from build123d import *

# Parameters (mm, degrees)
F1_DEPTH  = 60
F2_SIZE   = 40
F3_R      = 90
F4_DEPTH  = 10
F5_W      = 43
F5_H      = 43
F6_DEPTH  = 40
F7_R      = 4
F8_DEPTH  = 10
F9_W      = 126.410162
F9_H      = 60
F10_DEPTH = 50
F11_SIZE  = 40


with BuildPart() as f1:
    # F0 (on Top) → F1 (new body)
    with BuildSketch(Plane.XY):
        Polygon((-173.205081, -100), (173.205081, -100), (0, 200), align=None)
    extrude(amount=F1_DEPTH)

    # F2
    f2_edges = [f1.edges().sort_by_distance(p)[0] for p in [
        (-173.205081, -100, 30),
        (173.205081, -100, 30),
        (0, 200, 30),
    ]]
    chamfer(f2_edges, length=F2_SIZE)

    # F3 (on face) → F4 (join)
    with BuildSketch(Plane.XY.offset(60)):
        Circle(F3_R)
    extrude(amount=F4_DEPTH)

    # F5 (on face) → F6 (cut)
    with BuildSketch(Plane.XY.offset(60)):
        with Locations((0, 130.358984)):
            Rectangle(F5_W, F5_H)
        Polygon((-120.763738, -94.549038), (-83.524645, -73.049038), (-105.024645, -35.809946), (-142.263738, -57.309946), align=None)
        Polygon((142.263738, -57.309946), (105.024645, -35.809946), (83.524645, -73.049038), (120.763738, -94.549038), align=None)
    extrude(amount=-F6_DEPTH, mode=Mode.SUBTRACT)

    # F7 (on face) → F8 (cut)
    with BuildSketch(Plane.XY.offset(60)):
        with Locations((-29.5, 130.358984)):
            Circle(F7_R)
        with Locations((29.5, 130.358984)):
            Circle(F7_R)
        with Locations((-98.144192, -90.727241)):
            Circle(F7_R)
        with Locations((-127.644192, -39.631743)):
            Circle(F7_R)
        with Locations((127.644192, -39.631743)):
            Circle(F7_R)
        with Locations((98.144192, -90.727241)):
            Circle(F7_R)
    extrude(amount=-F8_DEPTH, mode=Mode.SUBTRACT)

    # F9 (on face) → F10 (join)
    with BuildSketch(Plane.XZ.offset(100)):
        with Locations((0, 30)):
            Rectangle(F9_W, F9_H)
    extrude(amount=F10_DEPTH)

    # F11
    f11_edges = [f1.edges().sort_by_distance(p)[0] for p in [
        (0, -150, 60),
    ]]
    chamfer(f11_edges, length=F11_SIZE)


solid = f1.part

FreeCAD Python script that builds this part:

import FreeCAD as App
import Part
import Sketcher
from FreeCAD import Vector
Q = App.Units.Quantity


def edges_at(feature, points):
    """Names of the edges that pass closest to the given points."""
    edges = feature.Shape.Edges
    near = lambda p: min(range(len(edges)), key=lambda i: edges[i].distToShape(Part.Vertex(*p))[0])
    return sorted({f"Edge{near(p) + 1}" for p in points})

doc = App.newDocument("Part")
body = doc.addObject("PartDesign::Body", "Body")

# Sketch on XY plane
sketch1 = body.newObject("Sketcher::SketchObject", "Sketch")
sketch1.AttachmentSupport = (doc.getObject("XY_Plane"), [""])
sketch1.MapMode = "FlatFace"
sketch1.addGeometry([
    Part.LineSegment(Vector(-173, -100, 0), Vector(173, -100, 0)),
    Part.LineSegment(Vector(173, -100, 0), Vector(0, 200, 0)),
    Part.LineSegment(Vector(0, 200, 0), Vector(-173, -100, 0)),
], False)
sketch1.addConstraint([
    Sketcher.Constraint("Coincident", 0, 2, 1, 1),
    Sketcher.Constraint("Coincident", 1, 2, 2, 1),
    Sketcher.Constraint("Coincident", 2, 2, 0, 1),
    Sketcher.Constraint("Horizontal", 0),
    Sketcher.Constraint("PointOnObject", 1, 2, -2),
    Sketcher.Constraint("Equal", 1, 2),
    Sketcher.Constraint("Angle", 1, Q("120 deg")),
    Sketcher.Constraint("DistanceY", 0, 2, -1, 1, 100.0),
    Sketcher.Constraint("DistanceY", -1, 1, 1, 2, 200.0),
])
pad1 = body.newObject("PartDesign::Pad", "Pad")
pad1.Profile = sketch1
pad1.Length = 60
doc.recompute()

chamfer = body.newObject("PartDesign::Chamfer", "Chamfer")
chamfer.Base = (pad1, edges_at(pad1, [(-173.205, -100, 30), (173.205, -100, 30), (0, 200, 30)]))
chamfer.Size = 40

# Sketch on XY plane
sketch2 = body.newObject("Sketcher::SketchObject", "Sketch001")
sketch2.AttachmentSupport = (doc.getObject("XY_Plane"), [""])
sketch2.MapMode = "FlatFace"
sketch2.AttachmentOffset = App.Placement(Vector(0, 0, 60), App.Rotation())
sketch2.addGeometry(Part.Circle(Vector(0, 0, 0), Vector(0, 0, 1), 90), False)
sketch2.addConstraint([
    Sketcher.Constraint("Coincident", 0, 3, -1, 1),
    Sketcher.Constraint("Diameter", 0, 180.0),
])
pad2 = body.newObject("PartDesign::Pad", "Pad001")
pad2.Profile = sketch2
pad2.Length = 10

# Sketch on XY plane
sketch3 = body.newObject("Sketcher::SketchObject", "Sketch002")
sketch3.AttachmentSupport = (doc.getObject("XY_Plane"), [""])
sketch3.MapMode = "FlatFace"
sketch3.AttachmentOffset = App.Placement(Vector(0, 0, 60), App.Rotation())
sketch3.addGeometry([
    Part.LineSegment(Vector(-22, 152, 0), Vector(-22, 109, 0)),  # 0
    Part.LineSegment(Vector(-22, 109, 0), Vector(22, 109, 0)),  # 1
    Part.LineSegment(Vector(22, 109, 0), Vector(22, 152, 0)),  # 2
    Part.LineSegment(Vector(22, 152, 0), Vector(-22, 152, 0)),  # 3
    Part.LineSegment(Vector(-121, -95, 0), Vector(-84, -73, 0)),  # 4
    Part.LineSegment(Vector(-84, -73, 0), Vector(-105, -36, 0)),  # 5
    Part.LineSegment(Vector(-105, -36, 0), Vector(-142, -57, 0)),  # 6
    Part.LineSegment(Vector(-142, -57, 0), Vector(-121, -95, 0)),  # 7
    Part.LineSegment(Vector(142, -57, 0), Vector(105, -36, 0)),  # 8
    Part.LineSegment(Vector(105, -36, 0), Vector(84, -73, 0)),  # 9
    Part.LineSegment(Vector(84, -73, 0), Vector(121, -95, 0)),  # 10
    Part.LineSegment(Vector(121, -95, 0), Vector(142, -57, 0)),  # 11
], False)
sketch3.addConstraint([
    Sketcher.Constraint("Coincident", 0, 2, 1, 1),
    Sketcher.Constraint("Coincident", 1, 2, 2, 1),
    Sketcher.Constraint("Coincident", 2, 2, 3, 1),
    Sketcher.Constraint("Coincident", 3, 2, 0, 1),
    Sketcher.Constraint("Coincident", 4, 2, 5, 1),
    Sketcher.Constraint("Coincident", 5, 2, 6, 1),
    Sketcher.Constraint("Coincident", 6, 2, 7, 1),
    Sketcher.Constraint("Coincident", 7, 2, 4, 1),
    Sketcher.Constraint("Coincident", 8, 2, 9, 1),
    Sketcher.Constraint("Coincident", 9, 2, 10, 1),
    Sketcher.Constraint("Coincident", 10, 2, 11, 1),
    Sketcher.Constraint("Coincident", 11, 2, 8, 1),
    Sketcher.Constraint("Vertical", 0),
    Sketcher.Constraint("Horizontal", 1),
    Sketcher.Constraint("Vertical", 2),
    Sketcher.Constraint("Horizontal", 3),
    Sketcher.Constraint("Symmetric", 5, 2, 8, 2, -2),
    Sketcher.Constraint("Symmetric", 4, 2, 9, 2, -2),
    Sketcher.Constraint("Symmetric", 7, 2, 10, 2, -2),
    Sketcher.Constraint("Symmetric", 6, 2, 11, 2, -2),
    Sketcher.Constraint("Perpendicular", 4, 5),
    Sketcher.Constraint("Perpendicular", 5, 6),
    Sketcher.Constraint("Perpendicular", 6, 7),
    Sketcher.Constraint("Equal", 3, 0),
    Sketcher.Constraint("Equal", 4, 5),
    Sketcher.Constraint("DistanceX", 1, 1, 1, 2, 43.0),
    Sketcher.Constraint("Angle", 4, Q("30 deg")),
    Sketcher.Constraint("Distance", 4, 43.000001),
    Sketcher.Constraint("DistanceX", 0, 2, -1, 1, 21.5),
    Sketcher.Constraint("DistanceX", 7, 2, -1, 1, 120.763738),
    Sketcher.Constraint("DistanceY", 4, 2, 3, 2, 224.908022),
    Sketcher.Constraint("DistanceY", -1, 1, 0, 2, 108.858984),
])
pocket1 = body.newObject("PartDesign::Pocket", "Pocket")
pocket1.Profile = sketch3
pocket1.Length = 40

# Sketch on XY plane
sketch4 = body.newObject("Sketcher::SketchObject", "Sketch003")
sketch4.AttachmentSupport = (doc.getObject("XY_Plane"), [""])
sketch4.MapMode = "FlatFace"
sketch4.AttachmentOffset = App.Placement(Vector(0, 0, 60), App.Rotation())
sketch4.addGeometry([
    Part.Circle(Vector(-29.5, 130.4, 0), Vector(0, 0, 1), 4),  # 0
    Part.Circle(Vector(29.5, 130.4, 0), Vector(0, 0, 1), 4),  # 1
    Part.Circle(Vector(-98.1, -90.7, 0), Vector(0, 0, 1), 4),  # 2
    Part.Circle(Vector(-127.6, -39.6, 0), Vector(0, 0, 1), 4),  # 3
    Part.Circle(Vector(127.6, -39.6, 0), Vector(0, 0, 1), 4),  # 4
    Part.Circle(Vector(98.1, -90.7, 0), Vector(0, 0, 1), 4),  # 5
], False)
sketch4.addConstraint([
    Sketcher.Constraint("Equal", 0, 1),
    Sketcher.Constraint("Equal", 1, 2),
    Sketcher.Constraint("Equal", 2, 3),
    Sketcher.Constraint("Equal", 3, 4),
    Sketcher.Constraint("Equal", 4, 5),
    Sketcher.Constraint("Symmetric", 0, 3, 1, 3, -2),
    Sketcher.Constraint("Symmetric", 3, 3, 4, 3, -2),
    Sketcher.Constraint("Symmetric", 2, 3, 5, 3, -2),
    Sketcher.Constraint("Diameter", 0, 8.0),
    Sketcher.Constraint("DistanceX", 0, 3, 1, 3, 59.0),
    Sketcher.Constraint("DistanceX", 3, 3, 2, 3, 29.5),
    Sketcher.Constraint("DistanceY", 2, 3, 3, 3, 51.095498),
    Sketcher.Constraint("DistanceY", 2, 3, -1, 1, 90.727241),
    Sketcher.Constraint("DistanceX", 3, 3, 1, 3, 157.144192),
    Sketcher.Constraint("DistanceY", -1, 1, 0, 3, 130.358984),
])
pocket2 = body.newObject("PartDesign::Pocket", "Pocket001")
pocket2.Profile = sketch4
pocket2.Length = 10

# Sketch on XZ plane
sketch5 = body.newObject("Sketcher::SketchObject", "Sketch004")
sketch5.AttachmentSupport = (doc.getObject("XZ_Plane"), [""])
sketch5.MapMode = "FlatFace"
sketch5.AttachmentOffset = App.Placement(Vector(0, 0, 100), App.Rotation())
sketch5.addGeometry([
    Part.LineSegment(Vector(-63, 60, 0), Vector(-63, 0, 0)),
    Part.LineSegment(Vector(-63, 0, 0), Vector(63, 0, 0)),
    Part.LineSegment(Vector(63, 0, 0), Vector(63, 60, 0)),
    Part.LineSegment(Vector(63, 60, 0), Vector(-63, 60, 0)),
], False)
sketch5.addConstraint([
    Sketcher.Constraint("Coincident", 0, 2, 1, 1),
    Sketcher.Constraint("Coincident", 1, 2, 2, 1),
    Sketcher.Constraint("Coincident", 2, 2, 3, 1),
    Sketcher.Constraint("Coincident", 3, 2, 0, 1),
    Sketcher.Constraint("Vertical", 0),
    Sketcher.Constraint("Horizontal", 1),
    Sketcher.Constraint("Vertical", 2),
    Sketcher.Constraint("Horizontal", 3),
    Sketcher.Constraint("Symmetric", 0, 2, 1, 2, -1, 1),
    Sketcher.Constraint("DistanceY", 0, 2, 0, 1, 60.0),
    Sketcher.Constraint("DistanceX", 1, 1, 1, 2, 126.410162),
])
pad3 = body.newObject("PartDesign::Pad", "Pad002")
pad3.Profile = sketch5
pad3.Length = 50
doc.recompute()

chamfer2 = body.newObject("PartDesign::Chamfer", "Chamfer001")
chamfer2.Base = (pad3, edges_at(pad3, [(0, -150, 60)]))
chamfer2.Size = 40

doc.recompute()
